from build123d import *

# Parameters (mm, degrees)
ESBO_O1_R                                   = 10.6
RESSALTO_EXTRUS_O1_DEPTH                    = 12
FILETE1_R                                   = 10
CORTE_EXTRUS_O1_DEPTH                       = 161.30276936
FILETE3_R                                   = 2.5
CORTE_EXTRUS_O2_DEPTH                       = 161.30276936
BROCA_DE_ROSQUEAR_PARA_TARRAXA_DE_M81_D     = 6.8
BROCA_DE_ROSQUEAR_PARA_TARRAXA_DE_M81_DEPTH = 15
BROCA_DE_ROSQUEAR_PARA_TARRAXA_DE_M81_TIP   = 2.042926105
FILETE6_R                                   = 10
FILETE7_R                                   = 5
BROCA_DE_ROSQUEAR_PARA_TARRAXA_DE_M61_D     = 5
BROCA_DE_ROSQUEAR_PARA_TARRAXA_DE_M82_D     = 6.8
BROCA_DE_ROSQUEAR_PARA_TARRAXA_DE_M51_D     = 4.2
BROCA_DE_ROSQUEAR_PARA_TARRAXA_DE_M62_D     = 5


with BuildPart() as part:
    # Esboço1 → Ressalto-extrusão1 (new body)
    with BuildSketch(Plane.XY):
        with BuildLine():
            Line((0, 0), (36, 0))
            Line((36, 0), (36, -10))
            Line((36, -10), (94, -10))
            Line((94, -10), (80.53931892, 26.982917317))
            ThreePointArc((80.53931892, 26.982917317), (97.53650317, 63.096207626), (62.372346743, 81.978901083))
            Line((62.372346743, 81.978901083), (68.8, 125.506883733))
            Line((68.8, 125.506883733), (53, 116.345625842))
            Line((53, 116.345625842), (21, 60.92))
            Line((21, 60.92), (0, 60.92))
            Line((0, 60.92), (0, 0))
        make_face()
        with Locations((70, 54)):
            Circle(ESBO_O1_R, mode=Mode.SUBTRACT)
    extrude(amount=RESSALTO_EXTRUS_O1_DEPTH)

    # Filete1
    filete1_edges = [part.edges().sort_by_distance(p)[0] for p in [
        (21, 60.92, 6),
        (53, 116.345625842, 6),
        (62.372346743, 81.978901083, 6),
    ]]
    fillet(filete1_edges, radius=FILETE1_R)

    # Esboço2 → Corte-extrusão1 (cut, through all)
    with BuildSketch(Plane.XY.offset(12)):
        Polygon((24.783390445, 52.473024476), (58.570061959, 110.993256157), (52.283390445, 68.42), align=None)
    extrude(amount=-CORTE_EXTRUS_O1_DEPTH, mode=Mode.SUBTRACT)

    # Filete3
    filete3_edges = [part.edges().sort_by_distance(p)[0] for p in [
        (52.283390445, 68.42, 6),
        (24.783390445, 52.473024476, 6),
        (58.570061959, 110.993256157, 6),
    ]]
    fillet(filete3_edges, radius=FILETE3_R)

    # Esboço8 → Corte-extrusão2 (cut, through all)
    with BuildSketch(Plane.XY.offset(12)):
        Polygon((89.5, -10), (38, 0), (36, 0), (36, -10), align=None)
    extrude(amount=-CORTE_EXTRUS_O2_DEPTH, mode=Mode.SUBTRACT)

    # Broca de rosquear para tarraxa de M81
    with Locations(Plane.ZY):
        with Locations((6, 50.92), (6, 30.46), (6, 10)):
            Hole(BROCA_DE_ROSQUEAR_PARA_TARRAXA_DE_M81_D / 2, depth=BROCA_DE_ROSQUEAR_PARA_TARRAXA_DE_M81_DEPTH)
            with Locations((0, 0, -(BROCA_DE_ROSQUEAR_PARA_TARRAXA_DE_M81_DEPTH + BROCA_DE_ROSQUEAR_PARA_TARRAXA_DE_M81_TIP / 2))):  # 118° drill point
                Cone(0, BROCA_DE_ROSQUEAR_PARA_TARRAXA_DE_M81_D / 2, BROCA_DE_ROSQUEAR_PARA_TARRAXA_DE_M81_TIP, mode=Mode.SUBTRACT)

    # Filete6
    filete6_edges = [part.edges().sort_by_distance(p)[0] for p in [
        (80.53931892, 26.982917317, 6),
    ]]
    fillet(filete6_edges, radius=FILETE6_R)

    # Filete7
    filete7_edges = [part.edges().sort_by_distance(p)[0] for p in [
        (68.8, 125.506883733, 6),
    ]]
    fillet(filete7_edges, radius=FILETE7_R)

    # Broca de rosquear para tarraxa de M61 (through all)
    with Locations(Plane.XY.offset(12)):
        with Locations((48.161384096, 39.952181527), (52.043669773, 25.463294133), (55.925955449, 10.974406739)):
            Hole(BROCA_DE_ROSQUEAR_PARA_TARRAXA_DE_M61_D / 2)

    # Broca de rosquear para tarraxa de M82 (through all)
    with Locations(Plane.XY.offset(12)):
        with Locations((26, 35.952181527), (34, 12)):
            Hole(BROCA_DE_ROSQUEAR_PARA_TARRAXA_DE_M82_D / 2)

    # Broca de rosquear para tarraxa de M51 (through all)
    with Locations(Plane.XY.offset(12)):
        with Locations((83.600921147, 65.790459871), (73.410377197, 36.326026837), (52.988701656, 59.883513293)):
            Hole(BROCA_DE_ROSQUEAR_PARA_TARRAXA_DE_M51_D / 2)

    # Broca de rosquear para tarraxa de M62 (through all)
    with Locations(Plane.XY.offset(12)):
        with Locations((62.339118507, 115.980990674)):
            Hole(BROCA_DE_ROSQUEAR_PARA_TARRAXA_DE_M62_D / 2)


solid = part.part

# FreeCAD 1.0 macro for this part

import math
import FreeCAD as App
import Part
import Sketcher
Q = App.Units.Quantity


def edges_at(feature, points):
    """Names of the edges that pass closest to the given points."""
    edges = feature.Shape.Edges
    near = lambda p: min(range(len(edges)), key=lambda i: edges[i].distToShape(Part.Vertex(*p))[0])
    return sorted({f"Edge{near(p) + 1}" for p in points})

doc = App.newDocument("Part")
body = doc.addObject("PartDesign::Body", "Body")

sketch1 = body.newObject("Sketcher::SketchObject", "Sketch")
sketch1.AttachmentSupport = (doc.getObject("XY_Plane"), [""])
sketch1.MapMode = "FlatFace"
sketch1.addGeometry(Part.LineSegment(App.Vector(0, 0, 0), App.Vector(36, 0, 0)), False)
sketch1.addGeometry(Part.LineSegment(App.Vector(36, 0, 0), App.Vector(36, -10, 0)), False)
sketch1.addGeometry(Part.LineSegment(App.Vector(36, -10, 0), App.Vector(94, -10, 0)), False)
sketch1.addGeometry(Part.LineSegment(App.Vector(94, -10, 0), App.Vector(80.539319, 26.982917, 0)), False)
sketch1.addGeometry(Part.ArcOfCircle(Part.Circle(App.Vector(70, 54, 0), App.Vector(0, 0, 1), 29), math.radians(-68.689326), math.radians(105.249484)), False)
sketch1.addGeometry(Part.LineSegment(App.Vector(62.372347, 81.978901, 0), App.Vector(68.8, 125.506884, 0)), False)
sketch1.addGeometry(Part.LineSegment(App.Vector(68.8, 125.506884, 0), App.Vector(53, 116.345626, 0)), False)
sketch1.addGeometry(Part.LineSegment(App.Vector(53, 116.345626, 0), App.Vector(21, 60.92, 0)), False)
sketch1.addGeometry(Part.LineSegment(App.Vector(21, 60.92, 0), App.Vector(0, 60.92, 0)), False)
sketch1.addGeometry(Part.LineSegment(App.Vector(0, 60.92, 0), App.Vector(0, 0, 0)), False)
sketch1.addGeometry(Part.Circle(App.Vector(70, 54, 0), App.Vector(0, 0, 1), 10.6), False)
sketch1.addConstraint(Sketcher.Constraint("Coincident", 0, 2, 1, 1))
sketch1.addConstraint(Sketcher.Constraint("Coincident", 1, 2, 2, 1))
sketch1.addConstraint(Sketcher.Constraint("Coincident", 2, 2, 3, 1))
sketch1.addConstraint(Sketcher.Constraint("Coincident", 3, 2, 4, 1))
sketch1.addConstraint(Sketcher.Constraint("Coincident", 4, 2, 5, 1))
sketch1.addConstraint(Sketcher.Constraint("Coincident", 5, 2, 6, 1))
sketch1.addConstraint(Sketcher.Constraint("Coincident", 6, 2, 7, 1))
sketch1.addConstraint(Sketcher.Constraint("Coincident", 7, 2, 8, 1))
sketch1.addConstraint(Sketcher.Constraint("Coincident", 8, 2, 9, 1))
sketch1.addConstraint(Sketcher.Constraint("Coincident", 9, 2, 0, 1))
sketch1.addConstraint(Sketcher.Constraint("Horizontal", 0))
sketch1.addConstraint(Sketcher.Constraint("Vertical", 1))
sketch1.addConstraint(Sketcher.Constraint("Horizontal", 2))
sketch1.addConstraint(Sketcher.Constraint("Horizontal", 8))
sketch1.addConstraint(Sketcher.Constraint("Vertical", 9))
sketch1.addConstraint(Sketcher.Constraint("Coincident", 9, 2, -1, 1))
sketch1.addConstraint(Sketcher.Constraint("Coincident", 10, 3, 4, 3))
sketch1.addConstraint(Sketcher.Constraint("Radius", 4, 29.0))
sketch1.addConstraint(Sketcher.Constraint("Diameter", 10, 21.2))
sketch1.addConstraint(Sketcher.Constraint("DistanceX", 0, 1, 0, 2, 36.0))
sketch1.addConstraint(Sketcher.Constraint("DistanceX", 2, 1, 2, 2, 58.0))
sketch1.addConstraint(Sketcher.Constraint("DistanceX", 8, 2, 8, 1, 21.0))
sketch1.addConstraint(Sketcher.Constraint("DistanceY", 1, 2, 1, 1, 10.0))
sketch1.addConstraint(Sketcher.Constraint("Angle", 3, Q("110 deg")))
sketch1.addConstraint(Sketcher.Constraint("Angle", 7, Q("-120 deg")))
sketch1.addConstraint(Sketcher.Constraint("Distance", 5, 44.0))
sketch1.addConstraint(Sketcher.Constraint("Distance", 7, 64.0))
sketch1.addConstraint(Sketcher.Constraint("DistanceX", -1, 1, 4, 3, 70.0))
sketch1.addConstraint(Sketcher.Constraint("DistanceY", -1, 1, 4, 3, 54.0))
sketch1.addConstraint(Sketcher.Constraint("Angle", 5, Q("81.6 deg")))
sketch1.addConstraint(Sketcher.Constraint("DistanceY", 9, 2, 9, 1, 60.92))
sketch1.addConstraint(Sketcher.Constraint("DistanceX", -1, 1, 5, 2, 68.8))
pad1 = body.newObject("PartDesign::Pad", "Pad")
pad1.Profile = sketch1
pad1.Length = 12
doc.recompute()

fillet = body.newObject("PartDesign::Fillet", "Fillet")
fillet.Base = (pad1, edges_at(pad1, [(21, 60.92, 6), (53, 116.346, 6), (62.372, 81.979, 6)]))
fillet.Radius = 10

sketch2 = body.newObject("Sketcher::SketchObject", "Sketch001")
sketch2.AttachmentSupport = (doc.getObject("XY_Plane"), [""])
sketch2.MapMode = "FlatFace"
sketch2.AttachmentOffset = App.Placement(App.Vector(0, 0, 12), App.Rotation())
sketch2.addGeometry(Part.LineSegment(App.Vector(58.570062, 110.993256, 0), App.Vector(24.78339, 52.473024, 0)), False)
sketch2.addGeometry(Part.LineSegment(App.Vector(24.78339, 52.473024, 0), App.Vector(52.28339, 68.42, 0)), False)
sketch2.addGeometry(Part.LineSegment(App.Vector(52.28339, 68.42, 0), App.Vector(58.570062, 110.993256, 0)), False)
sketch2.addConstraint(Sketcher.Constraint("Coincident", 0, 2, 1, 1))
sketch2.addConstraint(Sketcher.Constraint("Coincident", 1, 2, 2, 1))
sketch2.addConstraint(Sketcher.Constraint("Coincident", 2, 2, 0, 1))
sketch2.addConstraint(Sketcher.Constraint("Angle", 0, Q("-120 deg")))
sketch2.addConstraint(Sketcher.Constraint("Angle", 2, Q("81.6 deg")))
sketch2.addConstraint(Sketcher.Constraint("DistanceX", 0, 2, 1, 2, 27.5))
sketch2.addConstraint(Sketcher.Constraint("DistanceY", -1, 1, 1, 2, 68.42))
sketch2.addConstraint(Sketcher.Constraint("Distance", 2, 43.03492))
sketch2.addConstraint(Sketcher.Constraint("DistanceX", -1, 1, 0, 2, 24.78339))
pocket1 = body.newObject("PartDesign::Pocket", "Pocket")
pocket1.Profile = sketch2
pocket1.Type = "ThroughAll"
doc.recompute()

fillet2 = body.newObject("PartDesign::Fillet", "Fillet001")
fillet2.Base = (pocket1, edges_at(pocket1, [(52.283, 68.42, 6), (24.783, 52.473, 6), (58.57, 110.993, 6)]))
fillet2.Radius = 2.5

sketch3 = body.newObject("Sketcher::SketchObject", "Sketch002")
sketch3.AttachmentSupport = (doc.getObject("XY_Plane"), [""])
sketch3.MapMode = "FlatFace"
sketch3.AttachmentOffset = App.Placement(App.Vector(0, 0, 12), App.Rotation())
sketch3.addGeometry(Part.LineSegment(App.Vector(89.5, -10, 0), App.Vector(38, 0, 0)), False)
sketch3.addGeometry(Part.LineSegment(App.Vector(38, 0, 0), App.Vector(36, 0, 0)), False)
sketch3.addGeometry(Part.LineSegment(App.Vector(36, 0, 0), App.Vector(36, -10, 0)), False)
sketch3.addGeometry(Part.LineSegment(App.Vector(36, -10, 0), App.Vector(89.5, -10, 0)), False)
sketch3.addConstraint(Sketcher.Constraint("Coincident", 0, 2, 1, 1))
sketch3.addConstraint(Sketcher.Constraint("Coincident", 1, 2, 2, 1))
sketch3.addConstraint(Sketcher.Constraint("Coincident", 2, 2, 3, 1))
sketch3.addConstraint(Sketcher.Constraint("Coincident", 3, 2, 0, 1))
sketch3.addConstraint(Sketcher.Constraint("Horizontal", 1))
sketch3.addConstraint(Sketcher.Constraint("Vertical", 2))
sketch3.addConstraint(Sketcher.Constraint("Horizontal", 3))
sketch3.addConstraint(Sketcher.Constraint("PointOnObject", 0, 2, -1))
sketch3.addConstraint(Sketcher.Constraint("DistanceX", 1, 2, 1, 1, 2.0))
sketch3.addConstraint(Sketcher.Constraint("DistanceY", 2, 2, 2, 1, 10.0))
sketch3.addConstraint(Sketcher.Constraint("DistanceX", 3, 1, 3, 2, 53.5))
sketch3.addConstraint(Sketcher.Constraint("DistanceX", -1, 1, 0, 2, 38.0))
pocket2 = body.newObject("PartDesign::Pocket", "Pocket001")
pocket2.Profile = sketch3
pocket2.Type = "ThroughAll"

sketch4 = body.newObject("Sketcher::SketchObject", "Sketch003")
sketch4.AttachmentSupport = (doc.getObject("YZ_Plane"), [""])
sketch4.MapMode = "FlatFace"
sketch4.addGeometry(Part.Circle(App.Vector(50.92, 6, 0), App.Vector(0, 0, 1), 3.4), False)
sketch4.addGeometry(Part.Circle(App.Vector(30.46, 6, 0), App.Vector(0, 0, 1), 3.4), False)
sketch4.addGeometry(Part.Circle(App.Vector(10, 6, 0), App.Vector(0, 0, 1), 3.4), False)
sketch4.addConstraint(Sketcher.Constraint("Equal", 0, 1))
sketch4.addConstraint(Sketcher.Constraint("Equal", 1, 2))
sketch4.addConstraint(Sketcher.Constraint("Horizontal", 0, 3, 1, 3))
sketch4.addConstraint(Sketcher.Constraint("Horizontal", 1, 3, 2, 3))
sketch4.addConstraint(Sketcher.Constraint("Diameter", 0, 6.8))
sketch4.addConstraint(Sketcher.Constraint("DistanceY", -1, 1, 0, 3, 6.0))
sketch4.addConstraint(Sketcher.Constraint("DistanceX", -1, 1, 2, 3, 10.0))
sketch4.addConstraint(Sketcher.Constraint("DistanceX", -1, 1, 0, 3, 50.92))
sketch4.addConstraint(Sketcher.Constraint("DistanceX", -1, 1, 1, 3, 30.46))
doc.recompute()
hole = body.newObject("PartDesign::Hole", "Hole")
hole.Profile = sketch4
hole.ThreadType = "None"
hole.Diameter = 6.8
hole.DepthType = "Dimension"
hole.Depth = 15
hole.DrillPoint = "Angled"
hole.DrillPointAngle = 118
hole.Reversed = True
doc.recompute()

fillet3 = body.newObject("PartDesign::Fillet", "Fillet002")
fillet3.Base = (hole, edges_at(hole, [(80.539, 26.983, 6)]))
fillet3.Radius = 10
doc.recompute()

fillet4 = body.newObject("PartDesign::Fillet", "Fillet003")
fillet4.Base = (fillet3, edges_at(fillet3, [(68.8, 125.507, 6)]))
fillet4.Radius = 5

sketch5 = body.newObject("Sketcher::SketchObject", "Sketch004")
sketch5.AttachmentSupport = (doc.getObject("XY_Plane"), [""])
sketch5.MapMode = "FlatFace"
sketch5.AttachmentOffset = App.Placement(App.Vector(0, 0, 12), App.Rotation())
sketch5.addGeometry(Part.Circle(App.Vector(48.161384, 39.952182, 0), App.Vector(0, 0, 1), 2.5), False)
sketch5.addGeometry(Part.Circle(App.Vector(52.04367, 25.463294, 0), App.Vector(0, 0, 1), 2.5), False)
sketch5.addGeometry(Part.Circle(App.Vector(55.925955, 10.974407, 0), App.Vector(0, 0, 1), 2.5), False)
sketch5.addConstraint(Sketcher.Constraint("Equal", 0, 1))
sketch5.addConstraint(Sketcher.Constraint("Equal", 1, 2))
sketch5.addConstraint(Sketcher.Constraint("Diameter", 0, 5.0))
sketch5.addConstraint(Sketcher.Constraint("DistanceY", -1, 1, 0, 3, 39.952182))
sketch5.addConstraint(Sketcher.Constraint("DistanceX", -1, 1, 1, 3, 52.04367))
sketch5.addConstraint(Sketcher.Constraint("DistanceX", 0, 3, 2, 3, 7.764571))
sketch5.addConstraint(Sketcher.Constraint("DistanceX", -1, 1, 0, 3, 48.161384))
sketch5.addConstraint(Sketcher.Constraint("DistanceY", -1, 1, 1, 3, 25.463294))
sketch5.addConstraint(Sketcher.Constraint("DistanceY", -1, 1, 2, 3, 10.974407))
doc.recompute()
hole2 = body.newObject("PartDesign::Hole", "Hole001")
hole2.Profile = sketch5
hole2.ThreadType = "None"
hole2.Diameter = 5
hole2.DepthType = "ThroughAll"

sketch6 = body.newObject("Sketcher::SketchObject", "Sketch005")
sketch6.AttachmentSupport = (doc.getObject("XY_Plane"), [""])
sketch6.MapMode = "FlatFace"
sketch6.AttachmentOffset = App.Placement(App.Vector(0, 0, 12), App.Rotation())
sketch6.addGeometry(Part.Circle(App.Vector(26, 35.952182, 0), App.Vector(0, 0, 1), 3.4), False)
sketch6.addGeometry(Part.Circle(App.Vector(34, 12, 0), App.Vector(0, 0, 1), 3.4), False)
sketch6.addConstraint(Sketcher.Constraint("Equal", 0, 1))
sketch6.addConstraint(Sketcher.Constraint("Diameter", 0, 6.8))
sketch6.addConstraint(Sketcher.Constraint("DistanceX", -1, 1, 0, 3, 26.0))
sketch6.addConstraint(Sketcher.Constraint("DistanceX", -1, 1, 1, 3, 34.0))
sketch6.addConstraint(Sketcher.Constraint("DistanceY", -1, 1, 1, 3, 12.0))
sketch6.addConstraint(Sketcher.Constraint("DistanceY", -1, 1, 0, 3, 35.952182))
doc.recompute()
hole3 = body.newObject("PartDesign::Hole", "Hole002")
hole3.Profile = sketch6
hole3.ThreadType = "None"
hole3.Diameter = 6.8
hole3.DepthType = "ThroughAll"

sketch7 = body.newObject("Sketcher::SketchObject", "Sketch006")
sketch7.AttachmentSupport = (doc.getObject("XY_Plane"), [""])
sketch7.MapMode = "FlatFace"
sketch7.AttachmentOffset = App.Placement(App.Vector(0, 0, 12), App.Rotation())
sketch7.addGeometry(Part.Circle(App.Vector(83.600921, 65.79046, 0), App.Vector(0, 0, 1), 2.1), False)
sketch7.addGeometry(Part.Circle(App.Vector(73.410377, 36.326027, 0), App.Vector(0, 0, 1), 2.1), False)
sketch7.addGeometry(Part.Circle(App.Vector(52.988702, 59.883513, 0), App.Vector(0, 0, 1), 2.1), False)
sketch7.addConstraint(Sketcher.Constraint("Equal", 0, 1))
sketch7.addConstraint(Sketcher.Constraint("Equal", 1, 2))
sketch7.addConstraint(Sketcher.Constraint("Diameter", 0, 4.2))
sketch7.addConstraint(Sketcher.Constraint("DistanceX", -1, 1, 2, 3, 52.988702))
sketch7.addConstraint(Sketcher.Constraint("DistanceX", -1, 1, 0, 3, 83.600921))
sketch7.addConstraint(Sketcher.Constraint("DistanceY", -1, 1, 0, 3, 65.79046))
sketch7.addConstraint(Sketcher.Constraint("DistanceX", -1, 1, 1, 3, 73.410377))
sketch7.addConstraint(Sketcher.Constraint("DistanceY", -1, 1, 1, 3, 36.326027))
sketch7.addConstraint(Sketcher.Constraint("DistanceY", -1, 1, 2, 3, 59.883513))
doc.recompute()
hole4 = body.newObject("PartDesign::Hole", "Hole003")
hole4.Profile = sketch7
hole4.ThreadType = "None"
hole4.Diameter = 4.2
hole4.DepthType = "ThroughAll"

sketch8 = body.newObject("Sketcher::SketchObject", "Sketch007")
sketch8.AttachmentSupport = (doc.getObject("XY_Plane"), [""])
sketch8.MapMode = "FlatFace"
sketch8.AttachmentOffset = App.Placement(App.Vector(0, 0, 12), App.Rotation())
sketch8.addGeometry(Part.Circle(App.Vector(62.339119, 115.980991, 0), App.Vector(0, 0, 1), 2.5), False)
sketch8.addConstraint(Sketcher.Constraint("Diameter", 0, 5.0))
sketch8.addConstraint(Sketcher.Constraint("DistanceX", -1, 1, 0, 3, 62.339119))
sketch8.addConstraint(Sketcher.Constraint("DistanceY", -1, 1, 0, 3, 115.980991))
doc.recompute()
hole5 = body.newObject("PartDesign::Hole", "Hole004")
hole5.Profile = sketch8
hole5.ThreadType = "None"
hole5.Diameter = 5
hole5.DepthType = "ThroughAll"

doc.recompute()
